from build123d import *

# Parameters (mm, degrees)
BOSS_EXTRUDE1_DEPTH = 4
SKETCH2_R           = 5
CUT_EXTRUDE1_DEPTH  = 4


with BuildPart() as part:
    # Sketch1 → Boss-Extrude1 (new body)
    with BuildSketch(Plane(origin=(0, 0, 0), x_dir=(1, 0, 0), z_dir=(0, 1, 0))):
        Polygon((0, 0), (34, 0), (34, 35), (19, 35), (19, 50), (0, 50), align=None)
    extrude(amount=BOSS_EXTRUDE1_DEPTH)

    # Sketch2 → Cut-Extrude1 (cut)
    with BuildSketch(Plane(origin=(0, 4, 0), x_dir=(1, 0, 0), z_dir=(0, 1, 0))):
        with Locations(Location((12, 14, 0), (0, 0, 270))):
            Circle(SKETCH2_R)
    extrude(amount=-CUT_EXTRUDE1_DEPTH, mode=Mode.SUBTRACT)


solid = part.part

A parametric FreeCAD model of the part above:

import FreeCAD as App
import Part
import Sketcher

V = App.Vector


def add_polygon(sketch, points):
    """Adds a closed chain of lines whose ends are joined by coincident constraints."""
    first, n = sketch.GeometryCount, len(points)
    for a, b in zip(points, points[1:] + points[:1]):
        sketch.addGeometry(Part.LineSegment(App.Vector(*a, 0), App.Vector(*b, 0)), False)
    for i in range(n):
        sketch.addConstraint(Sketcher.Constraint("Coincident", first + i, 2, first + (i + 1) % n, 1))

doc = App.newDocument("Part")
params = doc.addObject("Spreadsheet::Sheet", "Params")
for row, (alias, value) in enumerate([
    ("sketch1_width", "34 mm"),
    ("sketch1_width2", "15 mm"),
    ("sketch1_height", "35 mm"),
    ("pad1_length", "4 mm"),
    ("sketch2_diameter", "10 mm"),
    ("pocket1_length", "4 mm"),
], start=1):
    params.set(f"A{row}", alias)
    params.set(f"B{row}", "=" + value)
    params.setAlias(f"B{row}", alias)

body = doc.addObject("PartDesign::Body", "Body")

# Sketch on XZ plane
sketch1 = body.newObject("Sketcher::SketchObject", "Sketch")
sketch1.AttachmentSupport = (doc.getObject("XZ_Plane"), [""])
sketch1.MapMode = "FlatFace"
add_polygon(sketch1, [(0, 0), (34, 0), (34, -35), (19, -35), (19, -50), (0, -50)])  # lines 0-5
sketch1.addConstraint([
    Sketcher.Constraint("Horizontal", 0),
    Sketcher.Constraint("Vertical", 1),
    Sketcher.Constraint("Horizontal", 2),
    Sketcher.Constraint("Vertical", 3),
    Sketcher.Constraint("Horizontal", 4),
    Sketcher.Constraint("Vertical", 5),
    Sketcher.Constraint("Coincident", 5, 2, -1, 1),
    Sketcher.Constraint("Equal", 2, 3),
    Sketcher.Constraint("DistanceX", 0, 1, 0, 2, 34.0),
    Sketcher.Constraint("DistanceX", 2, 2, 2, 1, 15.0),
    Sketcher.Constraint("DistanceY", 1, 2, 1, 1, 35.0),
])
sketch1.setExpression("Constraints[14]", "Params.sketch1_width")
sketch1.setExpression("Constraints[15]", "Params.sketch1_width2")
sketch1.setExpression("Constraints[16]", "Params.sketch1_height")
pad1 = body.newObject("PartDesign::Pad", "Pad")
pad1.Profile = sketch1
pad1.setExpression("Length", "Params.pad1_length")
pad1.Reversed = True

# Sketch on XZ plane
sketch2 = body.newObject("Sketcher::SketchObject", "Sketch001")
sketch2.AttachmentSupport = (doc.getObject("XZ_Plane"), [""])
sketch2.MapMode = "FlatFace"
sketch2.AttachmentOffset = App.Placement(V(0, 0, -4), App.Rotation())
sketch2.addGeometry(Part.Circle(V(12, -14, 0), V(0, 0, 1), 5), False)
sketch2.addConstraint([
    Sketcher.Constraint("Diameter", 0, 10.0),
    Sketcher.Constraint("DistanceX", -1, 1, 0, 3, 12.0),
    Sketcher.Constraint("DistanceY", 0, 3, -1, 1, 14.0),
])
sketch2.setExpression("Constraints[0]", "Params.sketch2_diameter")
pocket1 = body.newObject("PartDesign::Pocket", "Pocket")
pocket1.Profile = sketch2
pocket1.setExpression("Length", "Params.pocket1_length")
pocket1.Reversed = True

doc.recompute()
